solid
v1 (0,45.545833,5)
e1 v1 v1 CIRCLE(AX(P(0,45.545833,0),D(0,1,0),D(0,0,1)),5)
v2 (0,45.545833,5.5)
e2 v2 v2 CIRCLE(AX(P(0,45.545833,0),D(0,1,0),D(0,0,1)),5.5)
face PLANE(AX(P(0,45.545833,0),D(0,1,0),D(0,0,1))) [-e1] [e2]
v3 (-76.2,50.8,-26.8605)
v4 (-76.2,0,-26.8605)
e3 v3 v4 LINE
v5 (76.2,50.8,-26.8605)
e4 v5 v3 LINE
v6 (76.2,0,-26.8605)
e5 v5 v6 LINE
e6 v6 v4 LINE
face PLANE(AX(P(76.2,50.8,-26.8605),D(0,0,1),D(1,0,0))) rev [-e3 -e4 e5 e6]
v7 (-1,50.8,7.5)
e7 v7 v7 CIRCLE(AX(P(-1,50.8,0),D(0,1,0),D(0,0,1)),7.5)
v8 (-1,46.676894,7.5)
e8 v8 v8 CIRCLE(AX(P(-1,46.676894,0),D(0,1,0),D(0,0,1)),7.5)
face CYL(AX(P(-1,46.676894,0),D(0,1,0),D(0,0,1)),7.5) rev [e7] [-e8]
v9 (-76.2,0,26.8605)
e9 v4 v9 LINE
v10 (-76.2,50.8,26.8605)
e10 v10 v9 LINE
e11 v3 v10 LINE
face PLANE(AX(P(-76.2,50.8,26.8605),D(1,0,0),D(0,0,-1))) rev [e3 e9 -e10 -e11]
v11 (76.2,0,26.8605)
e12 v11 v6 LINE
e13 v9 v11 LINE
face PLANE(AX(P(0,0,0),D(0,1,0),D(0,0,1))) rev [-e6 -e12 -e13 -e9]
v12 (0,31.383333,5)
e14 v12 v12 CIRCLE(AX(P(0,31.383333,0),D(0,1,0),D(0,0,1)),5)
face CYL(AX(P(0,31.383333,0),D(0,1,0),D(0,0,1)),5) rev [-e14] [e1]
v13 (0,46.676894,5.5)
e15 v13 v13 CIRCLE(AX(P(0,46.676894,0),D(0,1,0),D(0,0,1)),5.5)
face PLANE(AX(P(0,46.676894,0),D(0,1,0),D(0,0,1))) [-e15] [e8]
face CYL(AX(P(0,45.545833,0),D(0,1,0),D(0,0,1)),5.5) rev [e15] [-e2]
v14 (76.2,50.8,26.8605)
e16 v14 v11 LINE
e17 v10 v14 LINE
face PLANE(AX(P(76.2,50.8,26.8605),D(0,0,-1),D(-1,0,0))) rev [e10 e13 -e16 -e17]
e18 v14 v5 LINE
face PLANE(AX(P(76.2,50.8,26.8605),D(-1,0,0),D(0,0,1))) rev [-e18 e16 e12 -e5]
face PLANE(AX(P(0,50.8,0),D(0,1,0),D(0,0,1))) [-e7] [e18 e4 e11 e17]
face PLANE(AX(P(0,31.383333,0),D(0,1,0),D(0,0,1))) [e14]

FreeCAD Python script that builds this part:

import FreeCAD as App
import Part
import Sketcher

V = App.Vector
Q = App.Units.Quantity


def add_polygon(sketch, points):
    """Adds a closed chain of lines whose ends are joined by coincident constraints."""
    first, n = sketch.GeometryCount, len(points)
    for a, b in zip(points, points[1:] + points[:1]):
        sketch.addGeometry(Part.LineSegment(App.Vector(*a, 0), App.Vector(*b, 0)), False)
    for i in range(n):
        sketch.addConstraint(Sketcher.Constraint("Coincident", first + i, 2, first + (i + 1) % n, 1))

doc = App.newDocument("Part")
body = doc.addObject("PartDesign::Body", "Body")

sketch1 = body.newObject("Sketcher::SketchObject", "Sketch")
sketch1.AttachmentSupport = (doc.getObject("XZ_Plane"), [""])
sketch1.MapMode = "FlatFace"
add_polygon(sketch1, [(-76.2, -26.8605), (-76.2, 26.8605), (76.2, 26.8605), (76.2, -26.8605)])
sketch1.addConstraint([
    Sketcher.Constraint("Vertical", 0),
    Sketcher.Constraint("Horizontal", 1),
    Sketcher.Constraint("Vertical", 2),
    Sketcher.Constraint("Horizontal", 3),
    Sketcher.Constraint("Symmetric", 0, 2, 2, 2, -1, 1),
    Sketcher.Constraint("DistanceX", 1, 1, 1, 2, Q("152.4 mm")),
    Sketcher.Constraint("DistanceY", 0, 1, 0, 2, Q("53.721 mm")),
])
pad1 = body.newObject("PartDesign::Pad", "Pad")
pad1.Profile = sketch1
pad1.Length = 50.8
pad1.Reversed = True

sketch2 = body.newObject("Sketcher::SketchObject", "Sketch001")
sketch2.AttachmentSupport = (doc.getObject("XZ_Plane"), [""])
sketch2.MapMode = "FlatFace"
sketch2.AttachmentOffset = App.Placement(V(0, 0, -50.8), App.Rotation())
sketch2.addGeometry(Part.Circle(V(0, 0, 0), V(0, 0, 1), 5), False)
sketch2.addConstraint([
    Sketcher.Constraint("Coincident", 0, 3, -1, 1),
    Sketcher.Constraint("Diameter", 0, Q("10 mm")),
])
pocket1 = body.newObject("PartDesign::Pocket", "Pocket")
pocket1.Profile = sketch2
pocket1.Length = 19.416667
pocket1.Reversed = True

sketch3 = body.newObject("Sketcher::SketchObject", "Sketch002")
sketch3.AttachmentSupport = (doc.getObject("XZ_Plane"), [""])
sketch3.MapMode = "FlatFace"
sketch3.AttachmentOffset = App.Placement(V(0, 0, -50.8), App.Rotation())
sketch3.addGeometry([
    Part.Circle(V(0, 0, 0), V(0, 0, 1), 5.5),
    Part.Circle(V(0, 0, 0), V(0, 0, 1), 5),
], False)
sketch3.addConstraint([
    Sketcher.Constraint("Coincident", 0, 3, -1, 1),
    Sketcher.Constraint("Coincident", 1, 3, -1, 1),
    Sketcher.Constraint("Diameter", 0, Q("11 mm")),
    Sketcher.Constraint("Diameter", 1, Q("10 mm")),
])
pocket2 = body.newObject("PartDesign::Pocket", "Pocket001")
pocket2.Profile = sketch3
pocket2.Length = 5.254167
pocket2.Reversed = True

sketch4 = body.newObject("Sketcher::SketchObject", "Sketch003")
sketch4.AttachmentSupport = (doc.getObject("XZ_Plane"), [""])
sketch4.MapMode = "FlatFace"
sketch4.AttachmentOffset = App.Placement(V(0, 0, -50.8), App.Rotation())
sketch4.addGeometry([
    Part.Circle(V(-1, 0, 0), V(0, 0, 1), 7.5),
    Part.Circle(V(0, 0, 0), V(0, 0, 1), 5.5),
], False)
sketch4.addConstraint([
    Sketcher.Constraint("Coincident", 1, 3, -1, 1),
    Sketcher.Constraint("PointOnObject", 0, 3, -1),
    Sketcher.Constraint("Diameter", 0, Q("15 mm")),
    Sketcher.Constraint("Diameter", 1, Q("11 mm")),
    Sketcher.Constraint("DistanceX", 0, 3, -1, 1, Q("1 mm")),
])
pocket3 = body.newObject("PartDesign::Pocket", "Pocket002")
pocket3.Profile = sketch4
pocket3.Length = 4.123106
pocket3.Reversed = True

doc.recompute()
